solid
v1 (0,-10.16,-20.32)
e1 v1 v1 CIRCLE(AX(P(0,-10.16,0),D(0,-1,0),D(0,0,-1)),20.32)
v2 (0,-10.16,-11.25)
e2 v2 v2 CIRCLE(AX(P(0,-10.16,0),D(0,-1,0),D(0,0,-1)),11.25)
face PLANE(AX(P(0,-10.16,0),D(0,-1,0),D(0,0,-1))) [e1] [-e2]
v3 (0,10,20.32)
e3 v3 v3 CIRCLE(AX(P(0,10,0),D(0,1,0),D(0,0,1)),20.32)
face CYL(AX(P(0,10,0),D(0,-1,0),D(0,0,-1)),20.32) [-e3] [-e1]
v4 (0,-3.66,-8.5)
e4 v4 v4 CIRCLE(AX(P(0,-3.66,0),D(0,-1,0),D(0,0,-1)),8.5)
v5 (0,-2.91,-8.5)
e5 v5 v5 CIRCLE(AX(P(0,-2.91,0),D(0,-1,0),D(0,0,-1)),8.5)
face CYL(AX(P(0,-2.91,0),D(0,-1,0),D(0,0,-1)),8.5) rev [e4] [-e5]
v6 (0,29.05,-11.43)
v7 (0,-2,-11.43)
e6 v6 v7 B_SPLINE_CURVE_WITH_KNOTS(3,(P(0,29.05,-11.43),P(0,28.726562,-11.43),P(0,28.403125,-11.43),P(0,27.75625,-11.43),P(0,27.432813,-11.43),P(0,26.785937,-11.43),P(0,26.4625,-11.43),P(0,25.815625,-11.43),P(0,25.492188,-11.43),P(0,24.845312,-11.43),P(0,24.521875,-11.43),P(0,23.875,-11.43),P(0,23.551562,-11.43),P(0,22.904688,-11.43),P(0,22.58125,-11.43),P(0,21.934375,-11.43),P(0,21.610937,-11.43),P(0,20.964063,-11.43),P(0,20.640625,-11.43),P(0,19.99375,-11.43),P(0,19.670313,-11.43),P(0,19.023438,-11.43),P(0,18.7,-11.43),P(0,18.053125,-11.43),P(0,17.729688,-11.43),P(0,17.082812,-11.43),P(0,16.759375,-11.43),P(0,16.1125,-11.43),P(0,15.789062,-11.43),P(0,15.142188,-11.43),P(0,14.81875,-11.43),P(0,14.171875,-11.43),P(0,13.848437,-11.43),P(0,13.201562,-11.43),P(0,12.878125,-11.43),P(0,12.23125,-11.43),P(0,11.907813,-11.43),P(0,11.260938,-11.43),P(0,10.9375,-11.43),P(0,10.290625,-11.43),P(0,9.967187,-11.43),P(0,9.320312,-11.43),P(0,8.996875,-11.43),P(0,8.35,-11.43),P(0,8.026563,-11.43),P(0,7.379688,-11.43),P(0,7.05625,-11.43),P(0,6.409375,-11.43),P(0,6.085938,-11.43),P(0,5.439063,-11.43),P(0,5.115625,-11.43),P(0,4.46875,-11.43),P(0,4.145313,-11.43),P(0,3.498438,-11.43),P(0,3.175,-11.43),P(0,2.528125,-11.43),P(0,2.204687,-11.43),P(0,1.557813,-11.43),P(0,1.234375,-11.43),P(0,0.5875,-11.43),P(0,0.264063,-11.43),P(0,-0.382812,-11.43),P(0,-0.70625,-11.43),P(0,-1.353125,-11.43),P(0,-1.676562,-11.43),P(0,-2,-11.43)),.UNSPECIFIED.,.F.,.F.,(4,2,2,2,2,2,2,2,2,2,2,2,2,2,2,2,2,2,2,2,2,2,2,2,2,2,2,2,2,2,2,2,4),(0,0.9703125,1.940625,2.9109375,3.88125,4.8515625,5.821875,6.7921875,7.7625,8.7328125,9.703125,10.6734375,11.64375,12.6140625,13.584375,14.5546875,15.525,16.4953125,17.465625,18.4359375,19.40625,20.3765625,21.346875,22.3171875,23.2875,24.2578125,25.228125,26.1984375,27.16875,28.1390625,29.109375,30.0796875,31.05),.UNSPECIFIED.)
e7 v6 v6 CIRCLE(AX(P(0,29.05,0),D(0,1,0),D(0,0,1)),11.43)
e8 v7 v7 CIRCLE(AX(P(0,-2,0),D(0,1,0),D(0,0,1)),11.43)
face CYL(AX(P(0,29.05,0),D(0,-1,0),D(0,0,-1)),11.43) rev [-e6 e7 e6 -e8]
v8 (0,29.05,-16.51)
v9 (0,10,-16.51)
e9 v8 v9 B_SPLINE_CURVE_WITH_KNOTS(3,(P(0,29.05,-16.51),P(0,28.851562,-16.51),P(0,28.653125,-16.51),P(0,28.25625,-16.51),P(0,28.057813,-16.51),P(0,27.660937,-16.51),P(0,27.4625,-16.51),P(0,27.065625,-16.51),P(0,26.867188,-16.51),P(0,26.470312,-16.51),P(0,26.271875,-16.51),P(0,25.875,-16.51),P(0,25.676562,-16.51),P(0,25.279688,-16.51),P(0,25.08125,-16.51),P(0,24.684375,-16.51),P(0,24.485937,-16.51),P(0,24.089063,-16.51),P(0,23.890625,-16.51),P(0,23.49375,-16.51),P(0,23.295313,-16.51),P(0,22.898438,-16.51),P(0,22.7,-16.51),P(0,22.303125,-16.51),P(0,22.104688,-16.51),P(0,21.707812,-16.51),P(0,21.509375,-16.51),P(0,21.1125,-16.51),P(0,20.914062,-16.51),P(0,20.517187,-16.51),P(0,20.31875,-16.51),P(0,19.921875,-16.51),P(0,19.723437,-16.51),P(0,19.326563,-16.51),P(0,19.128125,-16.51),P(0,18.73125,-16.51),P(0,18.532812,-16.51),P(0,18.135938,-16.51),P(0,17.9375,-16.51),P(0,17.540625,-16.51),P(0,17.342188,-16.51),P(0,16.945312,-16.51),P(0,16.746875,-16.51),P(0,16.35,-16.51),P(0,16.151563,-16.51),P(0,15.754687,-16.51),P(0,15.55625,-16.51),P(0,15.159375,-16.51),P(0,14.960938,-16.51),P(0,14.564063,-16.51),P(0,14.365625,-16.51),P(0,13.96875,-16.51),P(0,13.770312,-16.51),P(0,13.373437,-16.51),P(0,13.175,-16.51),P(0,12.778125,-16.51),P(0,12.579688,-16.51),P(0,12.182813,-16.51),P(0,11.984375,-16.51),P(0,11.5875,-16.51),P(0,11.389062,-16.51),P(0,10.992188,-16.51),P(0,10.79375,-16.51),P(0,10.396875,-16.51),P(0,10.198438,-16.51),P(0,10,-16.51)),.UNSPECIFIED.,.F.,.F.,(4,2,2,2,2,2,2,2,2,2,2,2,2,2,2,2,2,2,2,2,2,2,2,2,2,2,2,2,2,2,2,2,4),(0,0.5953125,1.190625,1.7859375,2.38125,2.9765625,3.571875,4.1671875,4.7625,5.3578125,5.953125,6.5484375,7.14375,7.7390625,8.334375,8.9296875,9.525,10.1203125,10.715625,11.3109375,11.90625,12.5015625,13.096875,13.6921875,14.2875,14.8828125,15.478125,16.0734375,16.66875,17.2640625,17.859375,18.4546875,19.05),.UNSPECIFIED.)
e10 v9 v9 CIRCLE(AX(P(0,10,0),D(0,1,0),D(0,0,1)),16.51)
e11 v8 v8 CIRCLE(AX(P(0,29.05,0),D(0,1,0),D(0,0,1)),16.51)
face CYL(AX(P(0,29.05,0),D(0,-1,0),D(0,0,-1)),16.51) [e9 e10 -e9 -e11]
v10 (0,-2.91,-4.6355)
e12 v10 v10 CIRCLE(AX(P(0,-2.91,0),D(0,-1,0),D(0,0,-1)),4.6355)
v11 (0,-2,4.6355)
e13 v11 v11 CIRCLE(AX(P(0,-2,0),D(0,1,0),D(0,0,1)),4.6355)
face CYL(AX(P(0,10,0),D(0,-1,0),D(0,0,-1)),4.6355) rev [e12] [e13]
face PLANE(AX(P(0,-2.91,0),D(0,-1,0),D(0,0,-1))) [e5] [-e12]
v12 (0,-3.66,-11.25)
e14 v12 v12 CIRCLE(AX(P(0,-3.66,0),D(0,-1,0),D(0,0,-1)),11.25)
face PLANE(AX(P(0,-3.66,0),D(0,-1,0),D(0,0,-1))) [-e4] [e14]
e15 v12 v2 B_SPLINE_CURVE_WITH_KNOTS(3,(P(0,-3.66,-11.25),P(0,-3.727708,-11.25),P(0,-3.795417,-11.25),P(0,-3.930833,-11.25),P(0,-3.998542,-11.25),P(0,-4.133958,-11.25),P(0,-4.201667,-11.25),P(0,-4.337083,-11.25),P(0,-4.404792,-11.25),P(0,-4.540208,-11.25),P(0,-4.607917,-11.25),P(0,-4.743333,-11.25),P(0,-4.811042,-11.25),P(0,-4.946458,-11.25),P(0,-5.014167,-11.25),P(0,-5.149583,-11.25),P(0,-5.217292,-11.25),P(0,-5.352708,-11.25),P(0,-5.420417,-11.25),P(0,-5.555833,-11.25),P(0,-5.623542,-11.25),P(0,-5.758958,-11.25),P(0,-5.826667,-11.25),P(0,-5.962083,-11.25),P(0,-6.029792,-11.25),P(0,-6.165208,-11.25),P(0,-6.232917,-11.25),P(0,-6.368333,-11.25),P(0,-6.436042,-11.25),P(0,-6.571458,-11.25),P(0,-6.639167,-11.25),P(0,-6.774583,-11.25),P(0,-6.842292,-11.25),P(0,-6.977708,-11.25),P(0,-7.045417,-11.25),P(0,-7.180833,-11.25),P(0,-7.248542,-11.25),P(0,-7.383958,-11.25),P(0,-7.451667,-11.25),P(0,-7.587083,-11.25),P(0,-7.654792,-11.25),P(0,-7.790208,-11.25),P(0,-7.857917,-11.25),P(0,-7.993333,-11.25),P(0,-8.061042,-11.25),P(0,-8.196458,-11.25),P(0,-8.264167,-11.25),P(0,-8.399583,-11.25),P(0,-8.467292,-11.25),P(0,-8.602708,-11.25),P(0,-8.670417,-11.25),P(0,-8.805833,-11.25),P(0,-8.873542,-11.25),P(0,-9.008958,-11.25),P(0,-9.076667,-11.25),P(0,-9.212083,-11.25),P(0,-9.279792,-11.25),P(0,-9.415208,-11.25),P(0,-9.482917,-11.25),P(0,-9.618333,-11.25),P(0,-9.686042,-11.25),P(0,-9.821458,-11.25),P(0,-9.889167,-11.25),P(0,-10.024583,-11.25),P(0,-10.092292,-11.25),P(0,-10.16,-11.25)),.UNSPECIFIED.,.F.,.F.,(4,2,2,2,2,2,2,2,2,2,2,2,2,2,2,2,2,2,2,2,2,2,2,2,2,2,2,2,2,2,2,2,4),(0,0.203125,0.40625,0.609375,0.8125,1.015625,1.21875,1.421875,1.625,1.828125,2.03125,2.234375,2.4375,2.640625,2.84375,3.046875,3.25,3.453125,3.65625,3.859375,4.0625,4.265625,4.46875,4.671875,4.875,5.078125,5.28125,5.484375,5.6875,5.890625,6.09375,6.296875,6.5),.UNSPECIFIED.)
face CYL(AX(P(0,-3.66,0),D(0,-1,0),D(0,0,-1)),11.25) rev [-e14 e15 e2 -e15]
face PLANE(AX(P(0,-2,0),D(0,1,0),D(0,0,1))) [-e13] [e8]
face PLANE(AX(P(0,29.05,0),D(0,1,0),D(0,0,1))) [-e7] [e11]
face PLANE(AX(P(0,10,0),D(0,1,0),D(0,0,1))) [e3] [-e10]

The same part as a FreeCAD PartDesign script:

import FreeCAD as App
import Part
import Sketcher

V = App.Vector
Q = App.Units.Quantity

doc = App.newDocument("Part")
params = doc.addObject("Spreadsheet::Sheet", "Params")
for row, (alias, value) in enumerate([
    ("sketch1_diameter", "1.6 in"),
    ("sketch1_diameter2", "0.365 in"),
    ("pad1_length", "10 mm"),
    ("sketch2_diameter", "1.3 in"),
    ("sketch2_diameter2", "0.9 in"),
    ("pad2_length", "0.75 in"),
    ("sketch3_diameter", "1.6 in"),
    ("sketch3_diameter2", "0.365 in"),
    ("pad3_length", "0.4 in"),
    ("sketch4_diameter", "0.9 in"),
    ("pocket1_length", "12 mm"),
    ("pocket2_length", "6.5 mm"),
    ("pocket3_length", "0.75 mm"),
], start=1):
    params.set(f"A{row}", alias)
    params.set(f"B{row}", "=" + value)
    params.setAlias(f"B{row}", alias)

body = doc.addObject("PartDesign::Body", "Body")

# Sketch on XZ plane
sketch1 = doc.addObject("Sketcher::SketchObject", "Sketch")
body.addObject(sketch1)
sketch1.AttachmentSupport = (doc.XZ_Plane, [""])
sketch1.MapMode = "FlatFace"
sketch1.addGeometry([
    Part.Circle(V(0, 0, 0), V(0, 0, 1), 20.3),
    Part.Circle(V(0, 0, 0), V(0, 0, 1), 4.6),
], False)
sketch1.addConstraint([
    Sketcher.Constraint("Coincident", 0, 3, -1, 1),
    Sketcher.Constraint("Coincident", 1, 3, -1, 1),
    Sketcher.Constraint("Diameter", 0, Q("1.6 in")),
    Sketcher.Constraint("Diameter", 1, Q("0.365 in")),
])
sketch1.setExpression("Constraints[2]", "Params.sketch1_diameter")
sketch1.setExpression("Constraints[3]", "Params.sketch1_diameter2")
pad1 = doc.addObject("PartDesign::Pad", "Pad")
body.addObject(pad1)
pad1.Profile = sketch1
pad1.setExpression("Length", "Params.pad1_length")
pad1.Reversed = True

# Sketch on XZ plane
sketch2 = doc.addObject("Sketcher::SketchObject", "Sketch001")
body.addObject(sketch2)
sketch2.AttachmentSupport = (doc.XZ_Plane, [""])
sketch2.MapMode = "FlatFace"
sketch2.AttachmentOffset = App.Placement(V(0, 0, -10), App.Rotation())
sketch2.addGeometry([
    Part.Circle(V(0, 0, 0), V(0, 0, 1), 17),
    Part.Circle(V(0, 0, 0), V(0, 0, 1), 11),
], False)
sketch2.addConstraint([
    Sketcher.Constraint("Coincident", 0, 3, -1, 1),
    Sketcher.Constraint("Coincident", 1, 3, -1, 1),
    Sketcher.Constraint("Diameter", 0, Q("1.3 in")),
    Sketcher.Constraint("Diameter", 1, Q("0.9 in")),
])
sketch2.setExpression("Constraints[2]", "Params.sketch2_diameter")
sketch2.setExpression("Constraints[3]", "Params.sketch2_diameter2")
pad2 = doc.addObject("PartDesign::Pad", "Pad001")
body.addObject(pad2)
pad2.Profile = sketch2
pad2.setExpression("Length", "Params.pad2_length")
pad2.Reversed = True

# Sketch on XZ plane
sketch3 = doc.addObject("Sketcher::SketchObject", "Sketch002")
body.addObject(sketch3)
sketch3.AttachmentSupport = (doc.XZ_Plane, [""])
sketch3.MapMode = "FlatFace"
sketch3.AttachmentOffset = App.Placement(V(0, 0, 0.4 * 25.4), App.Rotation())
sketch3.addGeometry([
    Part.Circle(V(0, 0, 0), V(0, 0, 1), 20.3),
    Part.Circle(V(0, 0, 0), V(0, 0, 1), 4.6),
], False)
sketch3.addConstraint([
    Sketcher.Constraint("Coincident", 0, 3, -1, 1),
    Sketcher.Constraint("Coincident", 1, 3, -1, 1),
    Sketcher.Constraint("Diameter", 0, Q("1.6 in")),
    Sketcher.Constraint("Diameter", 1, Q("0.365 in")),
])
sketch3.setExpression("Constraints[2]", "Params.sketch3_diameter")
sketch3.setExpression("Constraints[3]", "Params.sketch3_diameter2")
pad3 = doc.addObject("PartDesign::Pad", "Pad002")
body.addObject(pad3)
pad3.Profile = sketch3
pad3.setExpression("Length", "Params.pad3_length")
pad3.Reversed = True

# Sketch on XZ plane
sketch4 = doc.addObject("Sketcher::SketchObject", "Sketch003")
body.addObject(sketch4)
sketch4.AttachmentSupport = (doc.XZ_Plane, [""])
sketch4.MapMode = "FlatFace"
sketch4.AttachmentOffset = App.Placement(V(0, 0, 2), App.Rotation())
sketch4.addGeometry(Part.Circle(V(0, 0, 0), V(0, 0, 1), 11), False)
sketch4.addConstraint([
    Sketcher.Constraint("Coincident", 0, 3, -1, 1),
    Sketcher.Constraint("Diameter", 0, Q("0.9 in")),
])
sketch4.setExpression("Constraints[1]", "Params.sketch4_diameter")
pocket1 = doc.addObject("PartDesign::Pocket", "Pocket")
body.addObject(pocket1)
pocket1.Profile = sketch4
pocket1.setExpression("Length", "Params.pocket1_length")

# Sketch on XZ plane
sketch5 = doc.addObject("Sketcher::SketchObject", "Sketch004")
body.addObject(sketch5)
sketch5.AttachmentSupport = (doc.XZ_Plane, [""])
sketch5.MapMode = "FlatFace"
sketch5.AttachmentOffset = App.Placement(V(0, 0, 0.4 * 25.4), App.Rotation())
sketch5.addGeometry(Part.Circle(V(0, 0, 0), V(0, 0, 1), 11), False)
sketch5.addConstraint([
    Sketcher.Constraint("Coincident", 0, 3, -1, 1),
    Sketcher.Constraint("Diameter", 0, 22.5),
])
pocket2 = doc.addObject("PartDesign::Pocket", "Pocket001")
body.addObject(pocket2)
pocket2.Profile = sketch5
pocket2.setExpression("Length", "Params.pocket2_length")

# Sketch on XZ plane
sketch6 = doc.addObject("Sketcher::SketchObject", "Sketch005")
body.addObject(sketch6)
sketch6.AttachmentSupport = (doc.XZ_Plane, [""])
sketch6.MapMode = "FlatFace"
sketch6.AttachmentOffset = App.Placement(V(0, 0, 3.66), App.Rotation())
sketch6.addGeometry(Part.Circle(V(0, 0, 0), V(0, 0, 1), 8), False)
sketch6.addConstraint([
    Sketcher.Constraint("Coincident", 0, 3, -1, 1),
    Sketcher.Constraint("Diameter", 0, 17.0),
])
pocket3 = doc.addObject("PartDesign::Pocket", "Pocket002")
body.addObject(pocket3)
pocket3.Profile = sketch6
pocket3.setExpression("Length", "Params.pocket3_length")

doc.recompute()
